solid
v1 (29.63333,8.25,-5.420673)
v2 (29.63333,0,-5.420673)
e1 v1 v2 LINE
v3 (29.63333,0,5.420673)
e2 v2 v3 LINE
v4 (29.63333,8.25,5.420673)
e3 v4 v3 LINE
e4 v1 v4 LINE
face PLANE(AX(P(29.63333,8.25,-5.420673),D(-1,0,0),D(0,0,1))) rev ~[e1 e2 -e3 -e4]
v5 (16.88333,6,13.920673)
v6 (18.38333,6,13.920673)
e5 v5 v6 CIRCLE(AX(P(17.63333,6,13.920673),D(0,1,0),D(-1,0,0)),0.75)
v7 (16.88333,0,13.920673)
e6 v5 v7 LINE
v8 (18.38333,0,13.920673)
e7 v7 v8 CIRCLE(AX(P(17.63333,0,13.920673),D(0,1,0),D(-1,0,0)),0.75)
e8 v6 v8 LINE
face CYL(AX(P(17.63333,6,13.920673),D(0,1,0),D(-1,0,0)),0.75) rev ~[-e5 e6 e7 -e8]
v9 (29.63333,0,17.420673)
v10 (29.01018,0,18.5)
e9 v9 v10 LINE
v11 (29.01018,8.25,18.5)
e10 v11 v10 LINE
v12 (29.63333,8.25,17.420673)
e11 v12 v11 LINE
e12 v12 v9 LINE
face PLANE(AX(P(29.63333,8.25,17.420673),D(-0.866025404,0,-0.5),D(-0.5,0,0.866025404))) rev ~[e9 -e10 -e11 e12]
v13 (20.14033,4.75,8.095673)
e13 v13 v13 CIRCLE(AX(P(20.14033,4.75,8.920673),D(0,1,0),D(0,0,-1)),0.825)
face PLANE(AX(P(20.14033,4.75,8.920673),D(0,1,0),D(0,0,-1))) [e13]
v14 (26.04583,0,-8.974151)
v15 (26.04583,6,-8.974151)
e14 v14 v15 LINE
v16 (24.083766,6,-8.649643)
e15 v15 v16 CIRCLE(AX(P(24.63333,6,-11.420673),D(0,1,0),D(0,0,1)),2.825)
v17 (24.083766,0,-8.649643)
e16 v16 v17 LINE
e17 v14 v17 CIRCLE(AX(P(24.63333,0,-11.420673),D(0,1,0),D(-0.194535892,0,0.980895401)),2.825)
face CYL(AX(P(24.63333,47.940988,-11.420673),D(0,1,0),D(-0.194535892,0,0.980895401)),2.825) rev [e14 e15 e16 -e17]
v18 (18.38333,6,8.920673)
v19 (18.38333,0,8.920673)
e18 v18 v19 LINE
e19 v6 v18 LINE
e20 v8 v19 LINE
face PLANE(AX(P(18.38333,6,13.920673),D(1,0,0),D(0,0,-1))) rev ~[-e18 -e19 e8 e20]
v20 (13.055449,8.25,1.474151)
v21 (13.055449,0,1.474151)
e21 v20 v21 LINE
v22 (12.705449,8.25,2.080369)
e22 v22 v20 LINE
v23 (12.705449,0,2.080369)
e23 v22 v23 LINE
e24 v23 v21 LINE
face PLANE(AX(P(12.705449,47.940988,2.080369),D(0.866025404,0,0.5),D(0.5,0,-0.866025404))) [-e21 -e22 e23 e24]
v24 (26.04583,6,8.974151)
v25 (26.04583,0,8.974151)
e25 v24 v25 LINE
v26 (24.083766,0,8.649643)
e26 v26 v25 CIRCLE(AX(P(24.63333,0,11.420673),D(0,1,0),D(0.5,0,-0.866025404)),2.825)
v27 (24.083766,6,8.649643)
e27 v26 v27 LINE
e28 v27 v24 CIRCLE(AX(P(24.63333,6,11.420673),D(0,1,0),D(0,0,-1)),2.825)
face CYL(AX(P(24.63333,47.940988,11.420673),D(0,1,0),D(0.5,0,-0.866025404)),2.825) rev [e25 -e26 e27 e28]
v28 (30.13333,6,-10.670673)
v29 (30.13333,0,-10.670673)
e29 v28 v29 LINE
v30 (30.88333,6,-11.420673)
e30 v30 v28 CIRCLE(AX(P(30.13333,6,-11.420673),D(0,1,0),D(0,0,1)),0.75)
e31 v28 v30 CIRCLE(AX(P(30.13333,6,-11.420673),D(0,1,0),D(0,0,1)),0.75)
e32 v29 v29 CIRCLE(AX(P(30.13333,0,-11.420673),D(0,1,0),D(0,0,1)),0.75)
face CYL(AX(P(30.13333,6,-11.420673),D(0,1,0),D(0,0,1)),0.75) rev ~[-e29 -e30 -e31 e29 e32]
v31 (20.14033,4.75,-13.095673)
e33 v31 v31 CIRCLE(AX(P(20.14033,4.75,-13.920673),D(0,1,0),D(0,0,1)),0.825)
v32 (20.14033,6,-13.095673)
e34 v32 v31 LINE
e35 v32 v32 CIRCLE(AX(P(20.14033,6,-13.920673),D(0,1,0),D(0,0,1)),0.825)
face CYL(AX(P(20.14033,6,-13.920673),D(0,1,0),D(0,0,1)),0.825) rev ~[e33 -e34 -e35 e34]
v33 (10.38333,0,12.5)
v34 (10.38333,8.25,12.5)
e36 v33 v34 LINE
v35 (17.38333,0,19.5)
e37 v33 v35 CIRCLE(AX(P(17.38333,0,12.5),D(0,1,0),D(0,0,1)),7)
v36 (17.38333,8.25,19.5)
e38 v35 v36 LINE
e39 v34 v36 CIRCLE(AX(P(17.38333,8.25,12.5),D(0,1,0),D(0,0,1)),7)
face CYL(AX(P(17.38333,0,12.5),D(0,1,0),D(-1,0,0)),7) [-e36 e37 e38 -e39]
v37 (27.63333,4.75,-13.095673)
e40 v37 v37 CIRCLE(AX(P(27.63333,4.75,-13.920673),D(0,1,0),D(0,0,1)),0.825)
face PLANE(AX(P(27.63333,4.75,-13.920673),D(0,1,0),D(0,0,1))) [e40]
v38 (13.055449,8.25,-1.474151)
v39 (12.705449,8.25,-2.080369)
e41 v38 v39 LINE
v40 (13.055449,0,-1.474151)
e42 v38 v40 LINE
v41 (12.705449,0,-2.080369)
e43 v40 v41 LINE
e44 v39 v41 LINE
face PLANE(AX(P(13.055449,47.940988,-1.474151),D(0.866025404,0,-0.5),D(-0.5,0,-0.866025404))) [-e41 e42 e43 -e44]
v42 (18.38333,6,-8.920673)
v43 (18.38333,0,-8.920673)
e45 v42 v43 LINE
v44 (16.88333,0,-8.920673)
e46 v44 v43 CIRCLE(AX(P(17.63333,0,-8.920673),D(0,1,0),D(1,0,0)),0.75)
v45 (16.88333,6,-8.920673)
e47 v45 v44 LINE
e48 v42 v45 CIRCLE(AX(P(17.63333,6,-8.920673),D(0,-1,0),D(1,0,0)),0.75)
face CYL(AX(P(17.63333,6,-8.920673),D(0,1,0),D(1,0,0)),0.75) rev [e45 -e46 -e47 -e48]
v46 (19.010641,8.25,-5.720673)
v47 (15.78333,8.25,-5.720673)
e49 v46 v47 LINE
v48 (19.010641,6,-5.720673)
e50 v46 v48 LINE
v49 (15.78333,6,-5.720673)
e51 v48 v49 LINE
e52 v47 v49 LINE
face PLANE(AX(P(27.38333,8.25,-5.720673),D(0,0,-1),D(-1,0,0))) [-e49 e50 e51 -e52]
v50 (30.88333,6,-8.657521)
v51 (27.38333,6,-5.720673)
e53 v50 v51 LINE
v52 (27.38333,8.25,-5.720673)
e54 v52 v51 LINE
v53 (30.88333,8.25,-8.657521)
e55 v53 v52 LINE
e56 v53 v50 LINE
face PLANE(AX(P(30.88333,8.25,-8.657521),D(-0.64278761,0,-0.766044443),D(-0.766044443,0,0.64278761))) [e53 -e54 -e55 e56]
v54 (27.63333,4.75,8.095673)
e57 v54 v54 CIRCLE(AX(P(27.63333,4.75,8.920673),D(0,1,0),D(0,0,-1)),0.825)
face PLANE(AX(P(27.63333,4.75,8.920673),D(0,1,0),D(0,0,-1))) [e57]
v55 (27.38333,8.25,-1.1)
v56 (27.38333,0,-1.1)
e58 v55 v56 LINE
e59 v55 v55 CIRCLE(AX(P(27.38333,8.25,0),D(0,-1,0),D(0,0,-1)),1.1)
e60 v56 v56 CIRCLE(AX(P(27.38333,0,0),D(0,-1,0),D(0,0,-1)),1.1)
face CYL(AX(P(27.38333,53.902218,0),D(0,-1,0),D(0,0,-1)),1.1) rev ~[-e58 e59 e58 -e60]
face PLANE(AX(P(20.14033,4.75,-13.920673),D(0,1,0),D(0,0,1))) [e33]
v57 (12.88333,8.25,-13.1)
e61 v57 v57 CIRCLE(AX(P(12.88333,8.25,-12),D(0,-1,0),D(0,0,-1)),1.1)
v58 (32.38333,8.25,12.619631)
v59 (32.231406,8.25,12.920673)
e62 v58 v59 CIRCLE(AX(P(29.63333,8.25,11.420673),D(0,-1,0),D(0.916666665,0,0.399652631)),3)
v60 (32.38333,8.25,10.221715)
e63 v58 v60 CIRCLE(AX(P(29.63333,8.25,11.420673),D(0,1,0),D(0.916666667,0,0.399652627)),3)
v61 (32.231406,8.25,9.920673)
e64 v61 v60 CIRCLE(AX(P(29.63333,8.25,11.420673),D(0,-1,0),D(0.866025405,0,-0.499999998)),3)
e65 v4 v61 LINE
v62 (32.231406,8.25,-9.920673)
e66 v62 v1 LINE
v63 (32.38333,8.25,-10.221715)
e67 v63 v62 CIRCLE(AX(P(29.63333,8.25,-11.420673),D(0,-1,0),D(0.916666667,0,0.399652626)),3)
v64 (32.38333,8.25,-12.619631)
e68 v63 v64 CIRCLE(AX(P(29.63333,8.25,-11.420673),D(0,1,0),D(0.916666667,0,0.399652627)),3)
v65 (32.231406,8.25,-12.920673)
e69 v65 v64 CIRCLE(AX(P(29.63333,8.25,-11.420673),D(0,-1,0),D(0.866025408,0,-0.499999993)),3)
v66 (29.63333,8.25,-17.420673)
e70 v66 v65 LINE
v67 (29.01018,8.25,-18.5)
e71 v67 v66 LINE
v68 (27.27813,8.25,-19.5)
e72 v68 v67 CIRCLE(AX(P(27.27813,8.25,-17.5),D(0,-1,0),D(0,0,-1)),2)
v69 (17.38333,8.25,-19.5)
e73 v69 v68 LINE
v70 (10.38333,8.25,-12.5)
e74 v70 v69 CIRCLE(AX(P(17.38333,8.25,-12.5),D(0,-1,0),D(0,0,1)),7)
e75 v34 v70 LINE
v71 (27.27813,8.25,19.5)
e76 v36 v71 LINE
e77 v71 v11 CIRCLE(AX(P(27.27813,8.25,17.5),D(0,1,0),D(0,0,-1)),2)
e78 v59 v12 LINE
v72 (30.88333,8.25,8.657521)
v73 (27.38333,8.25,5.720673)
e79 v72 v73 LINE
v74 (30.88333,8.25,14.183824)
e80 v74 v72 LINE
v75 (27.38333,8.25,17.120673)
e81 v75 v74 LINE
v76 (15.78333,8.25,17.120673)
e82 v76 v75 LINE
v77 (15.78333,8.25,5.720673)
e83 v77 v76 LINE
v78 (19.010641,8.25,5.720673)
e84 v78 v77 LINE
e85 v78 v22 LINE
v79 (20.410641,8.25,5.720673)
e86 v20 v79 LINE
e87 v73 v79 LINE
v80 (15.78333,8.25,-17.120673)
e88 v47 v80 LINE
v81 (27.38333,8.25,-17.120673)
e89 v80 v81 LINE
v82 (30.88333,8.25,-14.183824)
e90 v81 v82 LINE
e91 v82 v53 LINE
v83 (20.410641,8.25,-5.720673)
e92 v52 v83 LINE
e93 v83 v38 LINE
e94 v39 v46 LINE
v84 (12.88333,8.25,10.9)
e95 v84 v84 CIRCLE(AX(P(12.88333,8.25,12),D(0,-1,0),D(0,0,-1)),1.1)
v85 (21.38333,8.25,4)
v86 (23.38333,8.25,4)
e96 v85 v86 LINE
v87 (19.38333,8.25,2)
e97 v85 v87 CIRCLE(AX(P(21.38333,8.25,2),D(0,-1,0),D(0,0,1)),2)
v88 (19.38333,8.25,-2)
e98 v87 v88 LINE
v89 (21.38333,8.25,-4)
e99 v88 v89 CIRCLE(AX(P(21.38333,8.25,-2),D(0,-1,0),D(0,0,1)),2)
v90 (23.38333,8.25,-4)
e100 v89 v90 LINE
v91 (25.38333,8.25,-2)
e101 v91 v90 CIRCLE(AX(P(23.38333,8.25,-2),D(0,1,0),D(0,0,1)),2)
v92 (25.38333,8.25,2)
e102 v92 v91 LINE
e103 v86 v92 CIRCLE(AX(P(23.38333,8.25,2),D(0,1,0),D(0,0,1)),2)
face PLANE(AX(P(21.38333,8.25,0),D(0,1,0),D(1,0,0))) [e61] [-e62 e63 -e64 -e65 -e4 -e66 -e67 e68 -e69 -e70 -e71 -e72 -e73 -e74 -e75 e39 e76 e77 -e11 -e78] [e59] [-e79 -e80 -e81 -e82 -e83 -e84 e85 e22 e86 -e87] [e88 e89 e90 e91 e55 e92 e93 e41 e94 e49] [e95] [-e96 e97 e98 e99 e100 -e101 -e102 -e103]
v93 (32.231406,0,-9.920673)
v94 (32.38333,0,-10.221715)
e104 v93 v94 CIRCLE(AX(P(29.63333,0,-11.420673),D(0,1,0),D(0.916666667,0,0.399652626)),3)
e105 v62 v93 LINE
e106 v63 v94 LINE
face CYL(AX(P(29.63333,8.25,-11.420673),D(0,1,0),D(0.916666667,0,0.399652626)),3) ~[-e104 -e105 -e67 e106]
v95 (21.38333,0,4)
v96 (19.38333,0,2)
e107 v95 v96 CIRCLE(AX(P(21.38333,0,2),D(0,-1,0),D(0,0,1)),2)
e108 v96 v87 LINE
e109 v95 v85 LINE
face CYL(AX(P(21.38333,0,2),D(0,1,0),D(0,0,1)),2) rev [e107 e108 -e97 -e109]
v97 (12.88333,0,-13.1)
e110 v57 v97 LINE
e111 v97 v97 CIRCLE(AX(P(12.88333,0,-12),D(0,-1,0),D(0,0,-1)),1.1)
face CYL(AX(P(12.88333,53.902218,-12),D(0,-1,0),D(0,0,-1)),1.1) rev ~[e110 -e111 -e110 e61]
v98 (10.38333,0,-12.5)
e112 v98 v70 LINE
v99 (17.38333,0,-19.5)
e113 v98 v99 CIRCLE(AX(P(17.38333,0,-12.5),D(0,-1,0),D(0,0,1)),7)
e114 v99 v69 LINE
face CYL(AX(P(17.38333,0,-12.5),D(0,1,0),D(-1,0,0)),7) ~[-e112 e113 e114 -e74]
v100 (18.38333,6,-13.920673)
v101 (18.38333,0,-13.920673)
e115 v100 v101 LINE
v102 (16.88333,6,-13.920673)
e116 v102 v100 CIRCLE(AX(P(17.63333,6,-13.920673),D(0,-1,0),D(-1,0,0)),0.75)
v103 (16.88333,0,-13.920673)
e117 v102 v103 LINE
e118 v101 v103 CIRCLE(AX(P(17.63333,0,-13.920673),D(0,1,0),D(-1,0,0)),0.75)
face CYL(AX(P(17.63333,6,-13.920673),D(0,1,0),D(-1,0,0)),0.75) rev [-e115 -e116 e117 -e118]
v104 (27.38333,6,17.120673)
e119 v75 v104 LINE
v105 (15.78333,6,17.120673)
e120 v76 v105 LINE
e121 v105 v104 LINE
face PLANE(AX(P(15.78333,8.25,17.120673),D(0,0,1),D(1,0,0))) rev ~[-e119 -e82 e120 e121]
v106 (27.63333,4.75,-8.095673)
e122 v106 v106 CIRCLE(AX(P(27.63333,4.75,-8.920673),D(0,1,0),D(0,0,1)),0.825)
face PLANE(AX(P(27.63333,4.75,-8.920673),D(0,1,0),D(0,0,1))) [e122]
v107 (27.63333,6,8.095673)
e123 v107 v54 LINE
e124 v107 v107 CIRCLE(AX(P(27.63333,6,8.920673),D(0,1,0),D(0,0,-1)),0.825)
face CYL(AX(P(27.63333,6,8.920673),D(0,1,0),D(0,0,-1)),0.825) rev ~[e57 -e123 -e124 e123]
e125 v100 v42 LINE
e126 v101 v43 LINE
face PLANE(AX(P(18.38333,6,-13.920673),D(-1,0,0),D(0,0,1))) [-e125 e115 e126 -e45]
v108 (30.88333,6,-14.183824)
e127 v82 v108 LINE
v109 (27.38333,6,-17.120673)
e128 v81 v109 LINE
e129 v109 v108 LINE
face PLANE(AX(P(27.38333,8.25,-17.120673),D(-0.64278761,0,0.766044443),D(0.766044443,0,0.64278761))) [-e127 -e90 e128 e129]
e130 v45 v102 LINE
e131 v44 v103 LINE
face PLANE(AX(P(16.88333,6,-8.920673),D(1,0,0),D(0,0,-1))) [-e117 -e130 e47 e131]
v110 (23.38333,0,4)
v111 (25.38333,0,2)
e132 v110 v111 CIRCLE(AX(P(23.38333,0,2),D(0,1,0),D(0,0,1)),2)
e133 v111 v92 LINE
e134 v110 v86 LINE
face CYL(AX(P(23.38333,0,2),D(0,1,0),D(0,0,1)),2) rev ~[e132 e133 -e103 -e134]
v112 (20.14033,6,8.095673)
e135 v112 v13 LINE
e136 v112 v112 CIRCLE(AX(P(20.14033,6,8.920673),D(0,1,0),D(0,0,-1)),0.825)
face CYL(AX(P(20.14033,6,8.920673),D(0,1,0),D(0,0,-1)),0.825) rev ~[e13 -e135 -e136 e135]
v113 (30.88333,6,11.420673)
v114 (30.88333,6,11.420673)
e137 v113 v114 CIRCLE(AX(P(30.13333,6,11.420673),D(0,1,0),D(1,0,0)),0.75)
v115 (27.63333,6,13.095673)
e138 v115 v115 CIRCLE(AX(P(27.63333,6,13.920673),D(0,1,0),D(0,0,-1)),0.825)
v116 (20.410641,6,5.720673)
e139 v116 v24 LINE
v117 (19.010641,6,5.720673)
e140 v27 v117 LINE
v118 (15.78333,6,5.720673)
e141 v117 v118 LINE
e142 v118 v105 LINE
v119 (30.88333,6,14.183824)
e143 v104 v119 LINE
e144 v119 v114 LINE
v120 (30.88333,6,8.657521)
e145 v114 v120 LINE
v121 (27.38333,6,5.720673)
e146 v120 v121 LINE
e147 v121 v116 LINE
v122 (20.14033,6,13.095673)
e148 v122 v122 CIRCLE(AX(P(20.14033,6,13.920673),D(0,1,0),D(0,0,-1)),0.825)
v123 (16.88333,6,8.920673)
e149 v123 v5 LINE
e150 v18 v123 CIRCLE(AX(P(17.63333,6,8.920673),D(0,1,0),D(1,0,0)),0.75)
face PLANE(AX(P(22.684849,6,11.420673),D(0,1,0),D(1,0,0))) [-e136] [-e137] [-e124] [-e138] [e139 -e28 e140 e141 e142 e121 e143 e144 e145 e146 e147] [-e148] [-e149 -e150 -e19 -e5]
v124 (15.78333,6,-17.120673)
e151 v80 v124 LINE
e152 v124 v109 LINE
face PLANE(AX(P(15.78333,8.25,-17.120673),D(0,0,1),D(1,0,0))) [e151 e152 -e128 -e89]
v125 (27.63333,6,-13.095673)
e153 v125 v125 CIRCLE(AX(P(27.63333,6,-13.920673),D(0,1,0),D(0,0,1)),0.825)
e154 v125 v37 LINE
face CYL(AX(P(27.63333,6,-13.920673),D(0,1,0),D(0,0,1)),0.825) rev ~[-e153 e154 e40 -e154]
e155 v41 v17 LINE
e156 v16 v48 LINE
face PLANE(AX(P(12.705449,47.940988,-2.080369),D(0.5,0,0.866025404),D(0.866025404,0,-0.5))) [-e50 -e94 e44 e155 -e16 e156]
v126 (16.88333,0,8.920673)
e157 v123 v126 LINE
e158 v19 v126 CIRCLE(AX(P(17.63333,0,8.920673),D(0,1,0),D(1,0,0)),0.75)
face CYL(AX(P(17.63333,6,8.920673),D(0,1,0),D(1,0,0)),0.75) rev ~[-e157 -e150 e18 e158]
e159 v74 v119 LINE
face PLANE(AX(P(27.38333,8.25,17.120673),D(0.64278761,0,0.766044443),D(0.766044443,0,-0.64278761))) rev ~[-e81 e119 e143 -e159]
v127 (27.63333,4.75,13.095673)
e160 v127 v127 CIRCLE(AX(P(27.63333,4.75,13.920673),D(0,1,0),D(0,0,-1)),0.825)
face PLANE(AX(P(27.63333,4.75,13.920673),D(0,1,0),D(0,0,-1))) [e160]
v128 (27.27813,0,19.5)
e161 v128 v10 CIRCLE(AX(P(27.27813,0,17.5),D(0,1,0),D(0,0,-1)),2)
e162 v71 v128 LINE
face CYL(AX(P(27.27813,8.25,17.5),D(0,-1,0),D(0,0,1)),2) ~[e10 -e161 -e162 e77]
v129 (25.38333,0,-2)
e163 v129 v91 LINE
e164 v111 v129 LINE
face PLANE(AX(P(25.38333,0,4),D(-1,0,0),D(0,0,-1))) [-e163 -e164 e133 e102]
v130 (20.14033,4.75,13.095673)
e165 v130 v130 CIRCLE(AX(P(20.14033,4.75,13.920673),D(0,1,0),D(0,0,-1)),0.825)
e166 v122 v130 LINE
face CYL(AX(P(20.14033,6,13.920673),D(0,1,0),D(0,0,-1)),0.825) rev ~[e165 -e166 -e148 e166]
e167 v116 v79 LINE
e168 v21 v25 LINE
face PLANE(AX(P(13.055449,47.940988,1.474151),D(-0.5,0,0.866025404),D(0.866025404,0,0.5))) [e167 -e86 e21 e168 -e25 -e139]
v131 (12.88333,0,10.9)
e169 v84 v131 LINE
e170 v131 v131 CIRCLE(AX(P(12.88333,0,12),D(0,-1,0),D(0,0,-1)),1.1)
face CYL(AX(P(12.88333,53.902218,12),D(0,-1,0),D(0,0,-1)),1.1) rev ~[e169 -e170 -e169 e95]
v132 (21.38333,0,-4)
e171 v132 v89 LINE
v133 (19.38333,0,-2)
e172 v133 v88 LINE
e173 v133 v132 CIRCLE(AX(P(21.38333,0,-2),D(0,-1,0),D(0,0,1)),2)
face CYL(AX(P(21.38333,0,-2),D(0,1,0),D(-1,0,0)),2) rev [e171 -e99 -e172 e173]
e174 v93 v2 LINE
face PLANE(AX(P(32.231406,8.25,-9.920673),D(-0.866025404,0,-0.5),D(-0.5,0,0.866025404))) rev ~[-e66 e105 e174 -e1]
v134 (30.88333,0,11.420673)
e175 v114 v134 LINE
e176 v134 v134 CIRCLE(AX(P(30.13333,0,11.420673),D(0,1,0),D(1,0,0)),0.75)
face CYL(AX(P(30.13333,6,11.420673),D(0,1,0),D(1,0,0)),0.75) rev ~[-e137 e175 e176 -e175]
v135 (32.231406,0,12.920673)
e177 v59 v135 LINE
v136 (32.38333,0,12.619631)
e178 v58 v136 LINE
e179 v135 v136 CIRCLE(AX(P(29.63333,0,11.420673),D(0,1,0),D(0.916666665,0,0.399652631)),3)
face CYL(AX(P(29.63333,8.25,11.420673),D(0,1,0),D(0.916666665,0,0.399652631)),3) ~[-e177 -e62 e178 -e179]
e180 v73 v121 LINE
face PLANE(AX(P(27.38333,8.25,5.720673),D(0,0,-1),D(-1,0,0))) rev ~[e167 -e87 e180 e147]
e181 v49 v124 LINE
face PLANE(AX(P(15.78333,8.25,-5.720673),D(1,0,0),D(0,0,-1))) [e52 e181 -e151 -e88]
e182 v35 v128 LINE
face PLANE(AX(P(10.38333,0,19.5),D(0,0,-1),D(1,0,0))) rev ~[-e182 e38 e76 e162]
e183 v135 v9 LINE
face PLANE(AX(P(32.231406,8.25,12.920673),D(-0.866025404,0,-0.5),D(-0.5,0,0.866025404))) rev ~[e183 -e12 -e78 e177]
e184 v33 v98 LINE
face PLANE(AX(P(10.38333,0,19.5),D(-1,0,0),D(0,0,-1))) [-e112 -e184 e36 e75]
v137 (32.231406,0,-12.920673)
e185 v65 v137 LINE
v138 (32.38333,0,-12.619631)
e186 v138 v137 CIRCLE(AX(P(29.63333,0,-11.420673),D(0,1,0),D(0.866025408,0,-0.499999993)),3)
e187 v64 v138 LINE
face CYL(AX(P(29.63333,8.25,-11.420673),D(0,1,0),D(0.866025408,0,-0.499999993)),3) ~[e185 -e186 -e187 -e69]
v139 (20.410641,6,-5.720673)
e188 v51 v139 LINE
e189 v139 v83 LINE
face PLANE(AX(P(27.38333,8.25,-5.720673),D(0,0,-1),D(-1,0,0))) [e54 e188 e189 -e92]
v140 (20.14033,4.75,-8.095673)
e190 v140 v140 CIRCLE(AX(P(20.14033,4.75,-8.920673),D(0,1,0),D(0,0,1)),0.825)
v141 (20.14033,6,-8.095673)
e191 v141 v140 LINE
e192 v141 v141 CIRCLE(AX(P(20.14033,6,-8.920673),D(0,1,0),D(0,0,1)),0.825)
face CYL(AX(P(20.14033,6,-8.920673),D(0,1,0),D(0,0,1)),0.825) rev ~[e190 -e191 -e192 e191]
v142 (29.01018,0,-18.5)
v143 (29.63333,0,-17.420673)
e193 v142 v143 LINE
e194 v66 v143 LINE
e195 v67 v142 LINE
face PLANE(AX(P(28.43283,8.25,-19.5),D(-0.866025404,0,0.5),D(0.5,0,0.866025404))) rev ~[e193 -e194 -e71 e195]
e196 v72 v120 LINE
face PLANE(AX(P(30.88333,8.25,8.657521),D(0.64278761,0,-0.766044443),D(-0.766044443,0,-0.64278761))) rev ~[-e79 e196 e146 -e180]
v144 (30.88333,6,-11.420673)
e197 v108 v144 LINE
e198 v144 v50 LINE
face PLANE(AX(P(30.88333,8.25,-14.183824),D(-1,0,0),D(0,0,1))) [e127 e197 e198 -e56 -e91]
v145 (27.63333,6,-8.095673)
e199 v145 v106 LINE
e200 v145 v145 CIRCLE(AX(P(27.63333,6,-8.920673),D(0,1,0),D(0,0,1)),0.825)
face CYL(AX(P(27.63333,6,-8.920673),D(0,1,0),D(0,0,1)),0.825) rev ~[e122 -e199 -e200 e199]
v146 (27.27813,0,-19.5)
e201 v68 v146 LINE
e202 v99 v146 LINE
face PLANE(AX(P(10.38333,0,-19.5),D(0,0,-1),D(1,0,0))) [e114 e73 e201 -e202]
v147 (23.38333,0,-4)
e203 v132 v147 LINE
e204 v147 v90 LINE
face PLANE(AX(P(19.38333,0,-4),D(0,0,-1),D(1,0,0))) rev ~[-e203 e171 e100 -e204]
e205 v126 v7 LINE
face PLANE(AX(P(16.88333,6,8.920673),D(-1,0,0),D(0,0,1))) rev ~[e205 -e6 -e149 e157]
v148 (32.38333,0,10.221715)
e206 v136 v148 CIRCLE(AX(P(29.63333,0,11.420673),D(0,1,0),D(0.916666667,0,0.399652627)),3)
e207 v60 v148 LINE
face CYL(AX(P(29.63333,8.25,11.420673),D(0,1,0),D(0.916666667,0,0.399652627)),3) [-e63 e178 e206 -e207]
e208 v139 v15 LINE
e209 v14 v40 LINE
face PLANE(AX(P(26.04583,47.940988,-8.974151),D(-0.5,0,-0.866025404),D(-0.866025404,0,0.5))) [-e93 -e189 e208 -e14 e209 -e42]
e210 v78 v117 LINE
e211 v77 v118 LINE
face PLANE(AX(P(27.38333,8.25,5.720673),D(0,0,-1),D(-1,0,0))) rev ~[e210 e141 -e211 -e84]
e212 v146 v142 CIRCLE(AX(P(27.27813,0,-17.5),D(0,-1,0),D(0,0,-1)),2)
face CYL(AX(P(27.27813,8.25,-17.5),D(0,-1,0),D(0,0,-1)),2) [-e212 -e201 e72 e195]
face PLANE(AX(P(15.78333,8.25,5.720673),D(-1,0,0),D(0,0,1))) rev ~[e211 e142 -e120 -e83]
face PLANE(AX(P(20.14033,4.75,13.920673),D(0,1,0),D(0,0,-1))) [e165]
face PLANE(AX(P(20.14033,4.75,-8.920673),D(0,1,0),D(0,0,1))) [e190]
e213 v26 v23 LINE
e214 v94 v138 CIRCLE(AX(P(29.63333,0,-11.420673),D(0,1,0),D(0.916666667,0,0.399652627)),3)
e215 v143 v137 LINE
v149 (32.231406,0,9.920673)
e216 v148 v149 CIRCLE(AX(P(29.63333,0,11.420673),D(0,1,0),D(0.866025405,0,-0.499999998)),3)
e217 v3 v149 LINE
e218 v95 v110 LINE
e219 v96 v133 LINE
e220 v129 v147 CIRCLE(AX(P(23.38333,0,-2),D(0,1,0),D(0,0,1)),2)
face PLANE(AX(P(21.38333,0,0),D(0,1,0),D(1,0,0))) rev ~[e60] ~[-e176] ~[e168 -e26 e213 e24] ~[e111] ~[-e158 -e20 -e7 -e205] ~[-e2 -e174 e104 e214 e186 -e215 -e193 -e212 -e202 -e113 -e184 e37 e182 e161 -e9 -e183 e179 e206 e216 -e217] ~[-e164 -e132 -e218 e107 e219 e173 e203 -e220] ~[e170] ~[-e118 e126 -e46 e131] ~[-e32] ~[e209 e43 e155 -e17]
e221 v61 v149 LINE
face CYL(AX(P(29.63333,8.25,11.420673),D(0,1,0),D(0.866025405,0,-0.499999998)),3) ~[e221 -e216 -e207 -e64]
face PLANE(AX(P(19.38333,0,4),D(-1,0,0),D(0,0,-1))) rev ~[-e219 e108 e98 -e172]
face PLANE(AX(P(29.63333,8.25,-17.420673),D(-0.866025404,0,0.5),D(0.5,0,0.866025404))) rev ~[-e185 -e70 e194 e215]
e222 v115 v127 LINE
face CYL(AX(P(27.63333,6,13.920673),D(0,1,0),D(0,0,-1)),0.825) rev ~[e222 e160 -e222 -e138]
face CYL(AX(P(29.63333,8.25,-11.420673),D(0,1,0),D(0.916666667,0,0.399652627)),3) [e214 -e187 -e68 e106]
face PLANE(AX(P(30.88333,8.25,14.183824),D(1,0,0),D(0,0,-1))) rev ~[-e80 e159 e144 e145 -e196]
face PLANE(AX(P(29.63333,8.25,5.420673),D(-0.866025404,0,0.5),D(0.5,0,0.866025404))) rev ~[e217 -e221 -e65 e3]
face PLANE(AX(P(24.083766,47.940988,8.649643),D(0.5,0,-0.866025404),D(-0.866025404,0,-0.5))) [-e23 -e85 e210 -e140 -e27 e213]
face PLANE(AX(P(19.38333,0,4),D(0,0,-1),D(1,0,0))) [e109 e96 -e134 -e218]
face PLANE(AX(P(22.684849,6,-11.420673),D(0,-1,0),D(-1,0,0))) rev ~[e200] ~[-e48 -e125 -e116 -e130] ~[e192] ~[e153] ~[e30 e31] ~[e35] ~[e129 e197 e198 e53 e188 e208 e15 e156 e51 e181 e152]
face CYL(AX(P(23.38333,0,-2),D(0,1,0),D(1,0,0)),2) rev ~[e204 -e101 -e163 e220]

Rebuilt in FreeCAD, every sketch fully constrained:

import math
import FreeCAD as App
import Part
import Sketcher
from FreeCAD import Vector
Q = App.Units.Quantity


def edges_at(feature, points):
    """Names of the edges that pass closest to the given points."""
    edges = feature.Shape.Edges
    near = lambda p: min(range(len(edges)), key=lambda i: edges[i].distToShape(Part.Vertex(*p))[0])
    return sorted({f"Edge{near(p) + 1}" for p in points})

doc = App.newDocument("Part")
body = doc.addObject("PartDesign::Body", "Body")

# Sketch on XZ plane
sketch1 = body.newObject("Sketcher::SketchObject", "Sketch")
sketch1.AttachmentSupport = (doc.getObject("XZ_Plane"), [""])
sketch1.MapMode = "FlatFace"
sketch1.addGeometry([
    Part.LineSegment(Vector(10, -20, 0), Vector(10, 20, 0)),  # 0
    Part.LineSegment(Vector(10, 20, 0), Vector(32, 20, 0)),  # 1
    Part.LineSegment(Vector(32, 20, 0), Vector(32, -20, 0)),  # 2
    Part.LineSegment(Vector(32, -20, 0), Vector(10, -20, 0)),  # 3
    Part.LineSegment(Vector(25, 4, 0), Vector(19, 4, 0)),  # 4
    Part.LineSegment(Vector(19, 4, 0), Vector(19, -4, 0)),  # 5
    Part.LineSegment(Vector(19, -4, 0), Vector(25, -4, 0)),  # 6
    Part.LineSegment(Vector(25, -4, 0), Vector(25, 4, 0)),  # 7
], False)
sketch1.addConstraint([
    Sketcher.Constraint("Coincident", 0, 2, 1, 1),
    Sketcher.Constraint("Coincident", 1, 2, 2, 1),
    Sketcher.Constraint("Coincident", 2, 2, 3, 1),
    Sketcher.Constraint("Coincident", 3, 2, 0, 1),
    Sketcher.Constraint("Coincident", 4, 2, 5, 1),
    Sketcher.Constraint("Coincident", 5, 2, 6, 1),
    Sketcher.Constraint("Coincident", 6, 2, 7, 1),
    Sketcher.Constraint("Coincident", 7, 2, 4, 1),
    Sketcher.Constraint("Vertical", 0),
    Sketcher.Constraint("Horizontal", 1),
    Sketcher.Constraint("Vertical", 2),
    Sketcher.Constraint("Horizontal", 3),
    Sketcher.Constraint("Horizontal", 4),
    Sketcher.Constraint("Vertical", 5),
    Sketcher.Constraint("Horizontal", 6),
    Sketcher.Constraint("Vertical", 7),
    Sketcher.Constraint("DistanceX", 1, 1, 1, 2, Q("22 mm")),
    Sketcher.Constraint("DistanceX", 4, 2, 4, 1, Q("6 mm")),
    Sketcher.Constraint("DistanceY", 0, 1, 0, 2, Q("39 mm")),
    Sketcher.Constraint("DistanceY", 5, 2, 5, 1, Q("8 mm")),
    Sketcher.Constraint("DistanceY", -1, 1, 4, 2, Q("4 mm")),
    Sketcher.Constraint("DistanceX", 0, 2, 4, 2, Q("9 mm")),
    Sketcher.Constraint("DistanceY", -1, 1, 0, 2, Q("19.5 mm")),
    Sketcher.Constraint("DistanceX", -1, 1, 0, 2, Q("10.38333 mm")),
])
pad1 = body.newObject("PartDesign::Pad", "Pad")
pad1.Profile = sketch1
pad1.Length = 8.25
pad1.Reversed = True

# Sketch on XZ plane
sketch2 = body.newObject("Sketcher::SketchObject", "Sketch001")
sketch2.AttachmentSupport = (doc.getObject("XZ_Plane"), [""])
sketch2.MapMode = "FlatFace"
sketch2.AttachmentOffset = App.Placement(Vector(0, 0, -8.25), App.Rotation())
sketch2.addGeometry([
    Part.LineSegment(Vector(27.4, -17.1, 0), Vector(15.8, -17.1, 0)),  # 0
    Part.LineSegment(Vector(15.8, -17.1, 0), Vector(15.8, -5.7, 0)),  # 1
    Part.LineSegment(Vector(15.8, -5.7, 0), Vector(27.4, -5.7, 0)),  # 2
    Part.LineSegment(Vector(27.4, -5.7, 0), Vector(30.9, -8.7, 0)),  # 3
    Part.LineSegment(Vector(30.9, -8.7, 0), Vector(30.9, -14.2, 0)),  # 4
    Part.LineSegment(Vector(30.9, -14.2, 0), Vector(27.4, -17.1, 0)),  # 5
    Part.LineSegment(Vector(27.4, 17.1, 0), Vector(30.9, 14.2, 0)),  # 6
    Part.LineSegment(Vector(30.9, 14.2, 0), Vector(30.9, 8.7, 0)),  # 7
    Part.LineSegment(Vector(30.9, 8.7, 0), Vector(27.4, 5.7, 0)),  # 8
    Part.LineSegment(Vector(27.4, 5.7, 0), Vector(15.8, 5.7, 0)),  # 9
    Part.LineSegment(Vector(15.8, 5.7, 0), Vector(15.8, 17.1, 0)),  # 10
    Part.LineSegment(Vector(15.8, 17.1, 0), Vector(27.4, 17.1, 0)),  # 11
], False)
sketch2.addConstraint([
    Sketcher.Constraint("Coincident", 0, 2, 1, 1),
    Sketcher.Constraint("Coincident", 1, 2, 2, 1),
    Sketcher.Constraint("Coincident", 2, 2, 3, 1),
    Sketcher.Constraint("Coincident", 3, 2, 4, 1),
    Sketcher.Constraint("Coincident", 4, 2, 5, 1),
    Sketcher.Constraint("Coincident", 5, 2, 0, 1),
    Sketcher.Constraint("Coincident", 6, 2, 7, 1),
    Sketcher.Constraint("Coincident", 7, 2, 8, 1),
    Sketcher.Constraint("Coincident", 8, 2, 9, 1),
    Sketcher.Constraint("Coincident", 9, 2, 10, 1),
    Sketcher.Constraint("Coincident", 10, 2, 11, 1),
    Sketcher.Constraint("Coincident", 11, 2, 6, 1),
    Sketcher.Constraint("Horizontal", 0),
    Sketcher.Constraint("Vertical", 1),
    Sketcher.Constraint("Horizontal", 2),
    Sketcher.Constraint("Vertical", 4),
    Sketcher.Constraint("Vertical", 7),
    Sketcher.Constraint("Horizontal", 9),
    Sketcher.Constraint("Vertical", 10),
    Sketcher.Constraint("Horizontal", 11),
    Sketcher.Constraint("Symmetric", 4, 2, 6, 2, -1),
    Sketcher.Constraint("Symmetric", 2, 2, 8, 2, -1),
    Sketcher.Constraint("Symmetric", 0, 2, 10, 2, -1),
    Sketcher.Constraint("Parallel", 3, 6),
    Sketcher.Constraint("Parallel", 5, 8),
    Sketcher.Constraint("Vertical", 2, 2, 5, 2),
    Sketcher.Constraint("Vertical", 8, 2, 11, 2),
    Sketcher.Constraint("Angle", 3, Q("-40 deg")),
    Sketcher.Constraint("DistanceX", 0, 2, 0, 1, Q("11.6 mm")),
    Sketcher.Constraint("DistanceY", 1, 1, 1, 2, Q("11.4 mm")),
    Sketcher.Constraint("DistanceX", 2, 2, 3, 2, Q("3.5 mm")),
    Sketcher.Constraint("DistanceX", -1, 1, 0, 2, Q("15.78333 mm")),
    Sketcher.Constraint("DistanceY", 3, 2, -1, 1, Q("8.657521 mm")),
])
pocket1 = body.newObject("PartDesign::Pocket", "Pocket")
pocket1.Profile = sketch2
pocket1.Length = 2.25
pocket1.Reversed = True

# Sketch on XZ plane
sketch3 = body.newObject("Sketcher::SketchObject", "Sketch002")
sketch3.AttachmentSupport = (doc.getObject("XZ_Plane"), [""])
sketch3.MapMode = "FlatFace"
sketch3.AttachmentOffset = App.Placement(Vector(0, 0, -6), App.Rotation())
sketch3.addGeometry([
    Part.Circle(Vector(24.6, -11.4, 0), Vector(0, 0, 1), 2.8),  # 0
    Part.Circle(Vector(20.1, -13.9, 0), Vector(0, 0, 1), 0.8),  # 1
    Part.Circle(Vector(27.6, -13.9, 0), Vector(0, 0, 1), 0.8),  # 2
    Part.Circle(Vector(27.6, -8.9, 0), Vector(0, 0, 1), 0.8),  # 3
    Part.Circle(Vector(20.1, -8.9, 0), Vector(0, 0, 1), 0.8),  # 4
    Part.Circle(Vector(20.1, 8.9, 0), Vector(0, 0, 1), 0.8),  # 5
    Part.Circle(Vector(27.6, 8.9, 0), Vector(0, 0, 1), 0.8),  # 6
    Part.Circle(Vector(27.6, 13.9, 0), Vector(0, 0, 1), 0.8),  # 7
    Part.Circle(Vector(20.1, 13.9, 0), Vector(0, 0, 1), 0.8),  # 8
    Part.Circle(Vector(24.6, 11.4, 0), Vector(0, 0, 1), 2.8),  # 9
], False)
sketch3.addConstraint([
    Sketcher.Constraint("Equal", 1, 2),
    Sketcher.Constraint("Equal", 2, 3),
    Sketcher.Constraint("Equal", 3, 4),
    Sketcher.Constraint("Equal", 4, 5),
    Sketcher.Constraint("Equal", 5, 6),
    Sketcher.Constraint("Equal", 6, 7),
    Sketcher.Constraint("Equal", 7, 8),
    Sketcher.Constraint("Equal", 0, 9),
    Sketcher.Constraint("Symmetric", 4, 3, 5, 3, -1),
    Sketcher.Constraint("Symmetric", 3, 3, 6, 3, -1),
    Sketcher.Constraint("Symmetric", 2, 3, 7, 3, -1),
    Sketcher.Constraint("Symmetric", 1, 3, 8, 3, -1),
    Sketcher.Constraint("Symmetric", 0, 3, 9, 3, -1),
    Sketcher.Constraint("Horizontal", 1, 3, 2, 3),
    Sketcher.Constraint("Horizontal", 3, 3, 4, 3),
    Sketcher.Constraint("Vertical", 2, 3, 3, 3),
    Sketcher.Constraint("Vertical", 1, 3, 4, 3),
    Sketcher.Constraint("Diameter", 0, Q("5.65 mm")),
    Sketcher.Constraint("Diameter", 1, Q("1.65 mm")),
    Sketcher.Constraint("DistanceX", 0, 3, 2, 3, Q("3 mm")),
    Sketcher.Constraint("DistanceY", 2, 3, 3, 3, Q("5 mm")),
    Sketcher.Constraint("DistanceY", 1, 3, 0, 3, Q("2.5 mm")),
    Sketcher.Constraint("DistanceX", 1, 3, 0, 3, Q("4.493 mm")),
    Sketcher.Constraint("DistanceX", -1, 1, 0, 3, Q("24.63333 mm")),
    Sketcher.Constraint("DistanceY", 0, 3, -1, 1, Q("11.420673 mm")),
])
pocket2 = body.newObject("PartDesign::Pocket", "Pocket001")
pocket2.Profile = sketch3
pocket2.Length = 1.25
pocket2.Reversed = True

# Sketch on XZ plane
sketch4 = body.newObject("Sketcher::SketchObject", "Sketch003")
sketch4.AttachmentSupport = (doc.getObject("XZ_Plane"), [""])
sketch4.MapMode = "FlatFace"
sketch4.AttachmentOffset = App.Placement(Vector(0, 0, -6), App.Rotation())
sketch4.addGeometry([
    Part.Circle(Vector(30.1, -11.4, 0), Vector(0, 0, 1), 0.8),  # 0
    Part.Circle(Vector(30.1, 11.4, 0), Vector(0, 0, 1), 0.8),  # 1
    Part.LineSegment(Vector(16.9, -13.9, 0), Vector(16.9, -8.9, 0)),  # 2
    Part.ArcOfCircle(Part.Circle(Vector(17.6, -8.9, 0), Vector(0, 0, 1), 0.8), math.radians(0), math.radians(180)),  # 3
    Part.LineSegment(Vector(18.4, -8.9, 0), Vector(18.4, -13.9, 0)),  # 4
    Part.ArcOfCircle(Part.Circle(Vector(17.6, -13.9, 0), Vector(0, 0, 1), 0.8), math.radians(180), math.radians(360)),  # 5
    Part.LineSegment(Vector(16.9, 8.9, 0), Vector(16.9, 13.9, 0)),  # 6
    Part.ArcOfCircle(Part.Circle(Vector(17.6, 13.9, 0), Vector(0, 0, 1), 0.8), math.radians(0), math.radians(180)),  # 7
    Part.LineSegment(Vector(18.4, 13.9, 0), Vector(18.4, 8.9, 0)),  # 8
    Part.ArcOfCircle(Part.Circle(Vector(17.6, 8.9, 0), Vector(0, 0, 1), 0.8), math.radians(180), math.radians(360)),  # 9
], False)
sketch4.addConstraint([
    Sketcher.Constraint("Tangent", 2, 2, 3, 2),
    Sketcher.Constraint("Tangent", 3, 1, 4, 1),
    Sketcher.Constraint("Tangent", 4, 2, 5, 2),
    Sketcher.Constraint("Tangent", 5, 1, 2, 1),
    Sketcher.Constraint("Tangent", 6, 2, 7, 2),
    Sketcher.Constraint("Tangent", 7, 1, 8, 1),
    Sketcher.Constraint("Tangent", 8, 2, 9, 2),
    Sketcher.Constraint("Tangent", 9, 1, 6, 1),
    Sketcher.Constraint("Vertical", 2),
    Sketcher.Constraint("Vertical", 4),
    Sketcher.Constraint("Vertical", 6),
    Sketcher.Constraint("Vertical", 8),
    Sketcher.Constraint("Equal", 0, 1),
    Sketcher.Constraint("Equal", 1, 3),
    Sketcher.Constraint("Equal", 5, 7),
    Sketcher.Constraint("Symmetric", 0, 3, 1, 3, -1),
    Sketcher.Constraint("Symmetric", 5, 3, 7, 3, -1),
    Sketcher.Constraint("Equal", 4, 6),
    Sketcher.Constraint("Diameter", 0, Q("1.5 mm")),
    Sketcher.Constraint("DistanceY", 2, 1, 2, 2, Q("5 mm")),
    Sketcher.Constraint("DistanceX", 3, 3, 0, 3, Q("12.5 mm")),
    Sketcher.Constraint("DistanceY", 0, 3, 3, 3, Q("2.5 mm")),
    Sketcher.Constraint("DistanceX", -1, 1, 0, 3, Q("30.13333 mm")),
    Sketcher.Constraint("DistanceY", 0, 3, -1, 1, Q("11.420673 mm")),
])
pocket3 = body.newObject("PartDesign::Pocket", "Pocket002")
pocket3.Profile = sketch4
pocket3.Type = "ThroughAll"
pocket3.Reversed = True

# Sketch on XZ plane
sketch5 = body.newObject("Sketcher::SketchObject", "Sketch004")
sketch5.AttachmentSupport = (doc.getObject("XZ_Plane"), [""])
sketch5.MapMode = "FlatFace"
sketch5.AttachmentOffset = App.Placement(Vector(0, 0, -8.25), App.Rotation())
sketch5.addGeometry([
    Part.LineSegment(Vector(24.1, 8.6, 0), Vector(12.7, 2.1, 0)),  # 0
    Part.LineSegment(Vector(12.7, 2.1, 0), Vector(13.1, 1.5, 0)),  # 1
    Part.LineSegment(Vector(13.1, 1.5, 0), Vector(26, 9, 0)),  # 2
    Part.ArcOfCircle(Part.Circle(Vector(24.6, 11.4, 0), Vector(0, 0, 1), 2.8), math.radians(-60), math.radians(259)),  # 3
    Part.ArcOfCircle(Part.Circle(Vector(24.6, -11.4, 0), Vector(0, 0, 1), 2.8), math.radians(101), math.radians(420)),  # 4
    Part.LineSegment(Vector(26, -9, 0), Vector(13.1, -1.5, 0)),  # 5
    Part.LineSegment(Vector(13.1, -1.5, 0), Vector(12.7, -2.1, 0)),  # 6
    Part.LineSegment(Vector(12.7, -2.1, 0), Vector(24.1, -8.6, 0)),  # 7
], False)
sketch5.addConstraint([
    Sketcher.Constraint("Coincident", 0, 2, 1, 1),
    Sketcher.Constraint("Coincident", 1, 2, 2, 1),
    Sketcher.Constraint("Tangent", 2, 2, 3, 1),
    Sketcher.Constraint("Coincident", 3, 2, 0, 1),
    Sketcher.Constraint("Tangent", 4, 2, 5, 1),
    Sketcher.Constraint("Coincident", 5, 2, 6, 1),
    Sketcher.Constraint("Coincident", 6, 2, 7, 1),
    Sketcher.Constraint("Coincident", 7, 2, 4, 1),
    Sketcher.Constraint("Equal", 3, 4),
    Sketcher.Constraint("Symmetric", 3, 3, 4, 3, -1),
    Sketcher.Constraint("Symmetric", 1, 2, 5, 2, -1),
    Sketcher.Constraint("Symmetric", 0, 2, 6, 2, -1),
    Sketcher.Constraint("Perpendicular", 0, 1),
    Sketcher.Constraint("Perpendicular", 1, 2),
    Sketcher.Constraint("Perpendicular", 6, 7),
    Sketcher.Constraint("Angle", 0, Q("-150 deg")),
    Sketcher.Constraint("Distance", 2, Q("15 mm")),
    Sketcher.Constraint("Radius", 3, Q("2.825 mm")),
    Sketcher.Constraint("Distance", 1, Q("0.7 mm")),
    Sketcher.Constraint("DistanceX", -1, 1, 3, 3, Q("24.63333 mm")),
    Sketcher.Constraint("DistanceY", -1, 1, 0, 2, Q("2.080369 mm")),
])
pocket4 = body.newObject("PartDesign::Pocket", "Pocket003")
pocket4.Profile = sketch5
pocket4.Type = "ThroughAll"
pocket4.Midplane = True

# Sketch on XZ plane
sketch6 = body.newObject("Sketcher::SketchObject", "Sketch005")
sketch6.AttachmentSupport = (doc.getObject("XZ_Plane"), [""])
sketch6.MapMode = "FlatFace"
sketch6.AttachmentOffset = App.Placement(Vector(0, 0, -8.25), App.Rotation())
sketch6.addGeometry([
    Part.ArcOfCircle(Part.Circle(Vector(29.6, -11.4, 0), Vector(0, 0, 1), 3), math.radians(-24), math.radians(24)),
    Part.LineSegment(Vector(32.4, -12.6, 0), Vector(32.4, -10.2, 0)),
    Part.ArcOfCircle(Part.Circle(Vector(29.6, 11.4, 0), Vector(0, 0, 1), 3), math.radians(-24), math.radians(24)),
    Part.LineSegment(Vector(32.4, 10.2, 0), Vector(32.4, 12.6, 0)),
], False)
sketch6.addConstraint([
    Sketcher.Constraint("Coincident", 0, 1, 1, 1),
    Sketcher.Constraint("Coincident", 1, 2, 0, 2),
    Sketcher.Constraint("Coincident", 2, 1, 3, 1),
    Sketcher.Constraint("Coincident", 3, 2, 2, 2),
    Sketcher.Constraint("Vertical", 1),
    Sketcher.Constraint("Vertical", 3),
    Sketcher.Constraint("Equal", 0, 2),
    Sketcher.Constraint("Symmetric", 0, 3, 2, 3, -1),
    Sketcher.Constraint("Vertical", 1, 2, 2, 1),
    Sketcher.Constraint("Radius", 0, Q("3 mm")),
    Sketcher.Constraint("DistanceX", 0, 3, 0, 1, Q("2.75 mm")),
    Sketcher.Constraint("DistanceX", -1, 1, 0, 3, Q("29.63333 mm")),
    Sketcher.Constraint("DistanceY", 0, 1, -1, 1, Q("12.619631 mm")),
])
pad2 = body.newObject("PartDesign::Pad", "Pad001")
pad2.Profile = sketch6
pad2.Length = 8.25
doc.recompute()

fillet = body.newObject("PartDesign::Fillet", "Fillet")
fillet.Base = (pad2, edges_at(pad2, [
    (25.383, 4.125, -4),
    (19.383, 4.125, -4),
    (19.383, 4.125, 4),
    (25.383, 4.125, 4),
]))
fillet.Radius = 2

# Sketch on XZ plane
sketch7 = body.newObject("Sketcher::SketchObject", "Sketch006")
sketch7.AttachmentSupport = (doc.getObject("XZ_Plane"), [""])
sketch7.MapMode = "FlatFace"
sketch7.AttachmentOffset = App.Placement(Vector(0, 0, -8.25), App.Rotation())
sketch7.addGeometry([
    Part.LineSegment(Vector(29.63, -17.42, 0), Vector(32.23, -12.92, 0)),  # 0
    Part.ArcOfCircle(Part.Circle(Vector(29.63, -11.42, 0), Vector(0, 0, 1), 3), math.radians(-30), math.radians(-23.56)),  # 1
    Part.LineSegment(Vector(32.38, -12.62, 0), Vector(32.38, -19.5, 0)),  # 2
    Part.LineSegment(Vector(32.38, -19.5, 0), Vector(28.43, -19.5, 0)),  # 3
    Part.LineSegment(Vector(28.43, -19.5, 0), Vector(29.63, -17.42, 0)),  # 4
    Part.LineSegment(Vector(32.38, 10.22, 0), Vector(32.38, -10.22, 0)),  # 5
    Part.ArcOfCircle(Part.Circle(Vector(29.63, -11.42, 0), Vector(0, 0, 1), 3), math.radians(23.56), math.radians(30)),  # 6
    Part.LineSegment(Vector(32.23, -9.92, 0), Vector(29.63, -5.42, 0)),  # 7
    Part.LineSegment(Vector(29.63, -5.42, 0), Vector(29.63, 5.42, 0)),  # 8
    Part.LineSegment(Vector(29.63, 5.42, 0), Vector(32.23, 9.92, 0)),  # 9
    Part.ArcOfCircle(Part.Circle(Vector(29.63, 11.42, 0), Vector(0, 0, 1), 3), math.radians(-30), math.radians(-23.56)),  # 10
    Part.LineSegment(Vector(32.38, 19.5, 0), Vector(32.38, 12.62, 0)),  # 11
    Part.ArcOfCircle(Part.Circle(Vector(29.63, 11.42, 0), Vector(0, 0, 1), 3), math.radians(23.56), math.radians(30)),  # 12
    Part.LineSegment(Vector(32.23, 12.92, 0), Vector(29.63, 17.42, 0)),  # 13
    Part.LineSegment(Vector(29.63, 17.42, 0), Vector(28.43, 19.5, 0)),  # 14
    Part.LineSegment(Vector(28.43, 19.5, 0), Vector(32.38, 19.5, 0)),  # 15
], False)
sketch7.addConstraint([
    Sketcher.Constraint("Tangent", 0, 2, 1, 1),
    Sketcher.Constraint("Coincident", 1, 2, 2, 1),
    Sketcher.Constraint("Coincident", 2, 2, 3, 1),
    Sketcher.Constraint("Coincident", 3, 2, 4, 1),
    Sketcher.Constraint("Coincident", 4, 2, 0, 1),
    Sketcher.Constraint("Coincident", 5, 2, 6, 1),
    Sketcher.Constraint("Tangent", 6, 2, 7, 1),
    Sketcher.Constraint("Coincident", 7, 2, 8, 1),
    Sketcher.Constraint("Coincident", 8, 2, 9, 1),
    Sketcher.Constraint("Tangent", 9, 2, 10, 1),
    Sketcher.Constraint("Coincident", 10, 2, 5, 1),
    Sketcher.Constraint("Coincident", 11, 2, 12, 1),
    Sketcher.Constraint("Tangent", 12, 2, 13, 1),
    Sketcher.Constraint("Coincident", 13, 2, 14, 1),
    Sketcher.Constraint("Coincident", 14, 2, 15, 1),
    Sketcher.Constraint("Coincident", 15, 2, 11, 1),
    Sketcher.Constraint("Vertical", 2),
    Sketcher.Constraint("Horizontal", 3),
    Sketcher.Constraint("Vertical", 5),
    Sketcher.Constraint("Vertical", 8),
    Sketcher.Constraint("Vertical", 11),
    Sketcher.Constraint("Horizontal", 15),
    Sketcher.Constraint("Coincident", 6, 3, 1, 3),
    Sketcher.Constraint("Coincident", 12, 3, 10, 3),
    Sketcher.Constraint("Equal", 1, 6),
    Sketcher.Constraint("Equal", 6, 10),
    Sketcher.Constraint("Equal", 10, 12),
    Sketcher.Constraint("Symmetric", 1, 3, 10, 3, -1),
    Sketcher.Constraint("Symmetric", 4, 2, 13, 2, -1),
    Sketcher.Constraint("Symmetric", 3, 2, 14, 2, -1),
    Sketcher.Constraint("Parallel", 0, 4),
    Sketcher.Constraint("Parallel", 4, 9),
    Sketcher.Constraint("Parallel", 7, 13),
    Sketcher.Constraint("Vertical", 12, 3, 4, 2),
    Sketcher.Constraint("Vertical", 2, 2, 5, 2),
    Sketcher.Constraint("Vertical", 4, 2, 7, 2),
    Sketcher.Constraint("Vertical", 10, 2, 11, 2),
    Sketcher.Constraint("Radius", 1, Q("3 mm")),
    Sketcher.Constraint("Angle", 0, Q("60 deg")),
    Sketcher.Constraint("DistanceY", 2, 2, -1, 1, Q("19.5 mm")),
    Sketcher.Constraint("DistanceX", 6, 3, 1, 2, Q("2.75 mm")),
    Sketcher.Constraint("Distance", 4, Q("2.401 mm")),
    Sketcher.Constraint("DistanceX", -1, 1, 1, 3, Q("29.63333 mm")),
])
pocket5 = body.newObject("PartDesign::Pocket", "Pocket004")
pocket5.Profile = sketch7
pocket5.Type = "ThroughAll"
pocket5.Reversed = True
doc.recompute()

fillet2 = body.newObject("PartDesign::Fillet", "Fillet001")
fillet2.Base = (pocket5, edges_at(pocket5, [(10.383, 4.125, 19.5), (10.383, 4.125, -19.5)]))
fillet2.Radius = 7

# Sketch on XZ plane
sketch8 = body.newObject("Sketcher::SketchObject", "Sketch007")
sketch8.AttachmentSupport = (doc.getObject("XZ_Plane"), [""])
sketch8.MapMode = "FlatFace"
sketch8.AttachmentOffset = App.Placement(Vector(0, 0, -8.25), App.Rotation())
sketch8.addGeometry([
    Part.Circle(Vector(12.9, -12, 0), Vector(0, 0, 1), 1.1),
    Part.Circle(Vector(27.4, 0, 0), Vector(0, 0, 1), 1.1),
    Part.Circle(Vector(12.9, 12, 0), Vector(0, 0, 1), 1.1),
], False)
sketch8.addConstraint([
    Sketcher.Constraint("Equal", 0, 1),
    Sketcher.Constraint("Equal", 1, 2),
    Sketcher.Constraint("Symmetric", 0, 3, 2, 3, -1),
    Sketcher.Constraint("PointOnObject", 1, 3, -1),
    Sketcher.Constraint("Diameter", 0, Q("2.2 mm")),
    Sketcher.Constraint("DistanceY", 0, 3, -1, 1, Q("12 mm")),
    Sketcher.Constraint("DistanceX", 0, 3, 1, 3, Q("14.5 mm")),
    Sketcher.Constraint("DistanceX", -1, 1, 0, 3, Q("12.88333 mm")),
])
doc.recompute()
hole = body.newObject("PartDesign::Hole", "Hole")
hole.Profile = sketch8
hole.ThreadType = "None"
hole.Diameter = 2.2
hole.DepthType = "ThroughAll"
hole.Reversed = True
doc.recompute()

fillet3 = body.newObject("PartDesign::Fillet", "Fillet002")
fillet3.Base = (hole, edges_at(hole, [(28.433, 4.125, -19.5), (28.433, 4.125, 19.5)]))
fillet3.Radius = 2

doc.recompute()
